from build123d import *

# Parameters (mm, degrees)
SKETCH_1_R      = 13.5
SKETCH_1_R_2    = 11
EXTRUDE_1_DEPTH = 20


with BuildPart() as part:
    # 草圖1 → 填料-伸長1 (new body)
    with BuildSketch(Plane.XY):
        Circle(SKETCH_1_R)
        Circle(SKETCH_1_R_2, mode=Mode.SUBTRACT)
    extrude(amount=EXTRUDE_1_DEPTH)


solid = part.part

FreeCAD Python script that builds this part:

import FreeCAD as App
import Part
import Sketcher

doc = App.newDocument("Part")
body = doc.addObject("PartDesign::Body", "Body")

# Sketch on XY plane
sketch1 = body.newObject("Sketcher::SketchObject", "Sketch")
sketch1.AttachmentSupport = (doc.getObject("XY_Plane"), [""])
sketch1.MapMode = "FlatFace"
sketch1.addGeometry(Part.Circle(App.Vector(0, 0, 0), App.Vector(0, 0, 1), 13.5), False)
sketch1.addGeometry(Part.Circle(App.Vector(0, 0, 0), App.Vector(0, 0, 1), 11), False)
sketch1.addConstraint(Sketcher.Constraint("Coincident", 0, 3, -1, 1))
sketch1.addConstraint(Sketcher.Constraint("Coincident", 1, 3, -1, 1))
sketch1.addConstraint(Sketcher.Constraint("Diameter", 0, 27.0))
sketch1.addConstraint(Sketcher.Constraint("Diameter", 1, 22.0))
pad1 = body.newObject("PartDesign::Pad", "Pad")
pad1.Profile = sketch1
pad1.Length = 20

doc.recompute()
